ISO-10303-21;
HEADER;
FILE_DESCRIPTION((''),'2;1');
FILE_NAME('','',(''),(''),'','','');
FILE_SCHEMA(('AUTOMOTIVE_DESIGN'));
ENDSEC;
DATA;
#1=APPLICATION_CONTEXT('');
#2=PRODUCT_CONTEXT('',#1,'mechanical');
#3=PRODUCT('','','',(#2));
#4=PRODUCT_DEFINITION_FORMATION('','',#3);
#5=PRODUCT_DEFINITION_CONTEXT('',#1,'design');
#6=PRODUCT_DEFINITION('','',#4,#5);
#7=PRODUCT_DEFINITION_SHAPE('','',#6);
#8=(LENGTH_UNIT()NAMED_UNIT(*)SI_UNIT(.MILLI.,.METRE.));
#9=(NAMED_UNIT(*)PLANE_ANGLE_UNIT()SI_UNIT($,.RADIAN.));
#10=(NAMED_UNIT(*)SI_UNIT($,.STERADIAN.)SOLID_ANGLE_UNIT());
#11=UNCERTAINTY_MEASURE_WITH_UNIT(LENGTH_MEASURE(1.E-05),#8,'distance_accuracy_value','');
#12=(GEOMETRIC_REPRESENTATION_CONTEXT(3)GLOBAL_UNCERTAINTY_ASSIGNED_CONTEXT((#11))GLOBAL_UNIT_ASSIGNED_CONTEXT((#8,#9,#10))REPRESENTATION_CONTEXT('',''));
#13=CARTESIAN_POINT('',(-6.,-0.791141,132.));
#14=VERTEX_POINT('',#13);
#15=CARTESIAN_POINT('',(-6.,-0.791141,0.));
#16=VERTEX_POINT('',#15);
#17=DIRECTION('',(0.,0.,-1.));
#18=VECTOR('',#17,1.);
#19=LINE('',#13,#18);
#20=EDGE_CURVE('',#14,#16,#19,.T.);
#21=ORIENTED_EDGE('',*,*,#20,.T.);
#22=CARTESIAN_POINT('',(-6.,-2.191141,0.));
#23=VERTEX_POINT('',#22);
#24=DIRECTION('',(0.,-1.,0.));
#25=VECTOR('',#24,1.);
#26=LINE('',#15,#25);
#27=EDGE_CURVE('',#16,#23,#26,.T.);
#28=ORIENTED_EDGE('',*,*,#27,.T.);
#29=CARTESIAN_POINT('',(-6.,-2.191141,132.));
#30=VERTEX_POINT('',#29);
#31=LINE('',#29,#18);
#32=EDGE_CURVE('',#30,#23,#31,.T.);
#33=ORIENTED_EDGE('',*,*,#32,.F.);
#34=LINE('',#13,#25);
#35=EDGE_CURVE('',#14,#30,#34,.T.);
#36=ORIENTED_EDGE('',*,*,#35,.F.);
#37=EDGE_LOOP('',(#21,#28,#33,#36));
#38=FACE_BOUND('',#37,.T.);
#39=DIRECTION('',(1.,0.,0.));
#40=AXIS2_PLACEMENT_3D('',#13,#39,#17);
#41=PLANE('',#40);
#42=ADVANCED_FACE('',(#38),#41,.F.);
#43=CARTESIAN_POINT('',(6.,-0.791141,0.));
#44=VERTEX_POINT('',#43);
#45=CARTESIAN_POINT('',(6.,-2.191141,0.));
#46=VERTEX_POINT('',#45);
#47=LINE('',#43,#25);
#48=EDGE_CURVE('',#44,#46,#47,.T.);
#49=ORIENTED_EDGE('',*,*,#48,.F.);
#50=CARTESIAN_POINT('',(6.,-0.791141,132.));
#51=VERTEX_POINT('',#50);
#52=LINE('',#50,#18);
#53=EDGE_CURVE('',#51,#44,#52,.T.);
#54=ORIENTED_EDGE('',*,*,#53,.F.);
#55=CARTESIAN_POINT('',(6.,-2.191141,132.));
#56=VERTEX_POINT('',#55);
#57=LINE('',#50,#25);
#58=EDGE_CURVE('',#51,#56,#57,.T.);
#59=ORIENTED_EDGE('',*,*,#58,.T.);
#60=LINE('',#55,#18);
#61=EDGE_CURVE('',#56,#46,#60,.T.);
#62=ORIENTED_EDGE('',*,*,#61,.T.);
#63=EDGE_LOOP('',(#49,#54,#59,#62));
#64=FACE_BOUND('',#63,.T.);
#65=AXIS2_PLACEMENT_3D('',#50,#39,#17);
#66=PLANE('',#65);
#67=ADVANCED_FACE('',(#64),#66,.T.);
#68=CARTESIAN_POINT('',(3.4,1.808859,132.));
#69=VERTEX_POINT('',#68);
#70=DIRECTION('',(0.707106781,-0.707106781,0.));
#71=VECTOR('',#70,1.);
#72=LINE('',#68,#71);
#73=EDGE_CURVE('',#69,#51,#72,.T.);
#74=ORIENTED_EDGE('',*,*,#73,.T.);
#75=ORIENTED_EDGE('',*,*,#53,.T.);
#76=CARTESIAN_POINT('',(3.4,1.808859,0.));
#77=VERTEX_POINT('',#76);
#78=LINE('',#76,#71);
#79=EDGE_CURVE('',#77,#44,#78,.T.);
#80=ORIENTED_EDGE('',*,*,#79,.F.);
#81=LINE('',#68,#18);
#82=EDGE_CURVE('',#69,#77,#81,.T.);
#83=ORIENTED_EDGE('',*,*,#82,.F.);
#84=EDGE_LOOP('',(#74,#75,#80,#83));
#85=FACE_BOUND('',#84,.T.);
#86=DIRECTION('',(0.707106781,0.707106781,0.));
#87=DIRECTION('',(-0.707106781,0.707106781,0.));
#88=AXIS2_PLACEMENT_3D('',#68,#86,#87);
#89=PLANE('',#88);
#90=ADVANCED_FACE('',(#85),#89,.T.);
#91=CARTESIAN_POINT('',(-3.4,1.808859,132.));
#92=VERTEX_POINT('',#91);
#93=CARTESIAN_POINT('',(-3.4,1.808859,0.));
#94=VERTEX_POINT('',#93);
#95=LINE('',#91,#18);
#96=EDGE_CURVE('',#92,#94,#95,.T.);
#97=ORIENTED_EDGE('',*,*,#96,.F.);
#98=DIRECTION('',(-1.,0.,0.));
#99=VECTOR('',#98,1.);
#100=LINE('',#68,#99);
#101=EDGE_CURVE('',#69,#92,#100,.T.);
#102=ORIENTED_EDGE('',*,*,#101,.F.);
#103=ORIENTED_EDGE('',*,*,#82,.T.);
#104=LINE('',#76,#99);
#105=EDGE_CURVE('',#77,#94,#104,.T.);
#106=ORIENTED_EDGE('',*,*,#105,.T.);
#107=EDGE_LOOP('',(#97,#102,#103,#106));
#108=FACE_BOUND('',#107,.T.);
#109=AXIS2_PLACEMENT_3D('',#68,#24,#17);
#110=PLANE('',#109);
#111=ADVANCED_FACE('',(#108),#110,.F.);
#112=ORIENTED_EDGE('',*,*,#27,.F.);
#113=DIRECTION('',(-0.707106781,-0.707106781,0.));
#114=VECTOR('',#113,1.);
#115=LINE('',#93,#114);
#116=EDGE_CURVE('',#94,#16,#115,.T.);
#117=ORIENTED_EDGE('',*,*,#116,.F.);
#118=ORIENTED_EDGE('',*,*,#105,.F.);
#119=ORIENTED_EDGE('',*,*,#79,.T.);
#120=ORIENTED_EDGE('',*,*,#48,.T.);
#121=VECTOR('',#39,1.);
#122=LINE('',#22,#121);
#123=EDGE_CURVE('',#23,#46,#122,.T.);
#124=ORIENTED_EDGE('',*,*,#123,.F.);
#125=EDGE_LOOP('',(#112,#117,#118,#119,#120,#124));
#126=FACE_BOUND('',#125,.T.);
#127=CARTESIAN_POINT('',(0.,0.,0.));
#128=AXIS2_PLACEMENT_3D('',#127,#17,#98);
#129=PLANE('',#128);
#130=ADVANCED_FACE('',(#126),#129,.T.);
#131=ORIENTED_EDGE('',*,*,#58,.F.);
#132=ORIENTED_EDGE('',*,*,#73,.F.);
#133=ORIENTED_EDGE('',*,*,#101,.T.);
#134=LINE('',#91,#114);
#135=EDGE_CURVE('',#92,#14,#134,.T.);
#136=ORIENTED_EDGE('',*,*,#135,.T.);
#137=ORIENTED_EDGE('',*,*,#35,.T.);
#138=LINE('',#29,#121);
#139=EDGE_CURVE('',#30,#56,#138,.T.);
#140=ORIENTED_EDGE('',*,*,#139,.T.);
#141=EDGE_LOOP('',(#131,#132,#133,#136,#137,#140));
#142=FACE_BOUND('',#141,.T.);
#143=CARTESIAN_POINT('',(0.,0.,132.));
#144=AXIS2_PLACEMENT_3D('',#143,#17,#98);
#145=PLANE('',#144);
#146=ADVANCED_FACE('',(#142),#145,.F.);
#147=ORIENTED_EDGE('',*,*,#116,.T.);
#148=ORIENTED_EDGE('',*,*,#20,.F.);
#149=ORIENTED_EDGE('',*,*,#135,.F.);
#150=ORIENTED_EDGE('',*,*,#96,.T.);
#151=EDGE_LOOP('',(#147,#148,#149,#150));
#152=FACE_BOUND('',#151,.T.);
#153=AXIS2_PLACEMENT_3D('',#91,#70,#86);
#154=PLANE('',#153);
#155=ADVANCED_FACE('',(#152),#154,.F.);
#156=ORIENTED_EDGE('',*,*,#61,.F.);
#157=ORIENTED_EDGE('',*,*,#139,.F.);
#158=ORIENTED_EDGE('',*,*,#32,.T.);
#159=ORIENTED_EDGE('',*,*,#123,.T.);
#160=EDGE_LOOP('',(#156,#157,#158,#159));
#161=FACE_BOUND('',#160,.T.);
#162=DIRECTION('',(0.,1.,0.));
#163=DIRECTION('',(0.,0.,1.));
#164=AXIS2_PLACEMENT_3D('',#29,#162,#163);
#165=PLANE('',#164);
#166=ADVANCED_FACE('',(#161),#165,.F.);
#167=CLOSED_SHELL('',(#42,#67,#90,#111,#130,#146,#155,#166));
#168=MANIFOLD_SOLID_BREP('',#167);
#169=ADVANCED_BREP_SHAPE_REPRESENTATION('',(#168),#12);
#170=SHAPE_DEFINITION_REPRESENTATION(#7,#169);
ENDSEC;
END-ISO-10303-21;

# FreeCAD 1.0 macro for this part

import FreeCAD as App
import Part
import Sketcher


def add_polygon(sketch, points):
    """Adds a closed chain of lines whose ends are joined by coincident constraints."""
    first, n = sketch.GeometryCount, len(points)
    for a, b in zip(points, points[1:] + points[:1]):
        sketch.addGeometry(Part.LineSegment(App.Vector(*a, 0), App.Vector(*b, 0)), False)
    for i in range(n):
        sketch.addConstraint(Sketcher.Constraint("Coincident", first + i, 2, first + (i + 1) % n, 1))

doc = App.newDocument("Part")
body = doc.addObject("PartDesign::Body", "Body")

# Sketch on XY plane
sketch1 = body.newObject("Sketcher::SketchObject", "Sketch")
sketch1.AttachmentSupport = (doc.getObject("XY_Plane"), [""])
sketch1.MapMode = "FlatFace"
add_polygon(sketch1, [(3.4, 1.808859), (-3.4, 1.808859), (-6, -0.791141), (-6, -2.191141), (6, -2.191141), (6, -0.791141)])  # lines 0-5
sketch1.addConstraint([
    Sketcher.Constraint("Horizontal", 0),
    Sketcher.Constraint("Vertical", 2),
    Sketcher.Constraint("Horizontal", 3),
    Sketcher.Constraint("Vertical", 4),
    Sketcher.Constraint("Symmetric", 1, 2, 4, 2, -2),
    Sketcher.Constraint("Perpendicular", 1, 5),
    Sketcher.Constraint("Equal", 1, 5),
    Sketcher.Constraint("DistanceX", 3, 1, 3, 2, 12.0),
    Sketcher.Constraint("DistanceX", 0, 2, 0, 1, 6.8),
    Sketcher.Constraint("DistanceY", 2, 2, 2, 1, 1.4),
    Sketcher.Constraint("DistanceY", -1, 1, 0, 2, 1.808859),
])
pad1 = body.newObject("PartDesign::Pad", "Pad")
pad1.Profile = sketch1
pad1.Length = 132

doc.recompute()
